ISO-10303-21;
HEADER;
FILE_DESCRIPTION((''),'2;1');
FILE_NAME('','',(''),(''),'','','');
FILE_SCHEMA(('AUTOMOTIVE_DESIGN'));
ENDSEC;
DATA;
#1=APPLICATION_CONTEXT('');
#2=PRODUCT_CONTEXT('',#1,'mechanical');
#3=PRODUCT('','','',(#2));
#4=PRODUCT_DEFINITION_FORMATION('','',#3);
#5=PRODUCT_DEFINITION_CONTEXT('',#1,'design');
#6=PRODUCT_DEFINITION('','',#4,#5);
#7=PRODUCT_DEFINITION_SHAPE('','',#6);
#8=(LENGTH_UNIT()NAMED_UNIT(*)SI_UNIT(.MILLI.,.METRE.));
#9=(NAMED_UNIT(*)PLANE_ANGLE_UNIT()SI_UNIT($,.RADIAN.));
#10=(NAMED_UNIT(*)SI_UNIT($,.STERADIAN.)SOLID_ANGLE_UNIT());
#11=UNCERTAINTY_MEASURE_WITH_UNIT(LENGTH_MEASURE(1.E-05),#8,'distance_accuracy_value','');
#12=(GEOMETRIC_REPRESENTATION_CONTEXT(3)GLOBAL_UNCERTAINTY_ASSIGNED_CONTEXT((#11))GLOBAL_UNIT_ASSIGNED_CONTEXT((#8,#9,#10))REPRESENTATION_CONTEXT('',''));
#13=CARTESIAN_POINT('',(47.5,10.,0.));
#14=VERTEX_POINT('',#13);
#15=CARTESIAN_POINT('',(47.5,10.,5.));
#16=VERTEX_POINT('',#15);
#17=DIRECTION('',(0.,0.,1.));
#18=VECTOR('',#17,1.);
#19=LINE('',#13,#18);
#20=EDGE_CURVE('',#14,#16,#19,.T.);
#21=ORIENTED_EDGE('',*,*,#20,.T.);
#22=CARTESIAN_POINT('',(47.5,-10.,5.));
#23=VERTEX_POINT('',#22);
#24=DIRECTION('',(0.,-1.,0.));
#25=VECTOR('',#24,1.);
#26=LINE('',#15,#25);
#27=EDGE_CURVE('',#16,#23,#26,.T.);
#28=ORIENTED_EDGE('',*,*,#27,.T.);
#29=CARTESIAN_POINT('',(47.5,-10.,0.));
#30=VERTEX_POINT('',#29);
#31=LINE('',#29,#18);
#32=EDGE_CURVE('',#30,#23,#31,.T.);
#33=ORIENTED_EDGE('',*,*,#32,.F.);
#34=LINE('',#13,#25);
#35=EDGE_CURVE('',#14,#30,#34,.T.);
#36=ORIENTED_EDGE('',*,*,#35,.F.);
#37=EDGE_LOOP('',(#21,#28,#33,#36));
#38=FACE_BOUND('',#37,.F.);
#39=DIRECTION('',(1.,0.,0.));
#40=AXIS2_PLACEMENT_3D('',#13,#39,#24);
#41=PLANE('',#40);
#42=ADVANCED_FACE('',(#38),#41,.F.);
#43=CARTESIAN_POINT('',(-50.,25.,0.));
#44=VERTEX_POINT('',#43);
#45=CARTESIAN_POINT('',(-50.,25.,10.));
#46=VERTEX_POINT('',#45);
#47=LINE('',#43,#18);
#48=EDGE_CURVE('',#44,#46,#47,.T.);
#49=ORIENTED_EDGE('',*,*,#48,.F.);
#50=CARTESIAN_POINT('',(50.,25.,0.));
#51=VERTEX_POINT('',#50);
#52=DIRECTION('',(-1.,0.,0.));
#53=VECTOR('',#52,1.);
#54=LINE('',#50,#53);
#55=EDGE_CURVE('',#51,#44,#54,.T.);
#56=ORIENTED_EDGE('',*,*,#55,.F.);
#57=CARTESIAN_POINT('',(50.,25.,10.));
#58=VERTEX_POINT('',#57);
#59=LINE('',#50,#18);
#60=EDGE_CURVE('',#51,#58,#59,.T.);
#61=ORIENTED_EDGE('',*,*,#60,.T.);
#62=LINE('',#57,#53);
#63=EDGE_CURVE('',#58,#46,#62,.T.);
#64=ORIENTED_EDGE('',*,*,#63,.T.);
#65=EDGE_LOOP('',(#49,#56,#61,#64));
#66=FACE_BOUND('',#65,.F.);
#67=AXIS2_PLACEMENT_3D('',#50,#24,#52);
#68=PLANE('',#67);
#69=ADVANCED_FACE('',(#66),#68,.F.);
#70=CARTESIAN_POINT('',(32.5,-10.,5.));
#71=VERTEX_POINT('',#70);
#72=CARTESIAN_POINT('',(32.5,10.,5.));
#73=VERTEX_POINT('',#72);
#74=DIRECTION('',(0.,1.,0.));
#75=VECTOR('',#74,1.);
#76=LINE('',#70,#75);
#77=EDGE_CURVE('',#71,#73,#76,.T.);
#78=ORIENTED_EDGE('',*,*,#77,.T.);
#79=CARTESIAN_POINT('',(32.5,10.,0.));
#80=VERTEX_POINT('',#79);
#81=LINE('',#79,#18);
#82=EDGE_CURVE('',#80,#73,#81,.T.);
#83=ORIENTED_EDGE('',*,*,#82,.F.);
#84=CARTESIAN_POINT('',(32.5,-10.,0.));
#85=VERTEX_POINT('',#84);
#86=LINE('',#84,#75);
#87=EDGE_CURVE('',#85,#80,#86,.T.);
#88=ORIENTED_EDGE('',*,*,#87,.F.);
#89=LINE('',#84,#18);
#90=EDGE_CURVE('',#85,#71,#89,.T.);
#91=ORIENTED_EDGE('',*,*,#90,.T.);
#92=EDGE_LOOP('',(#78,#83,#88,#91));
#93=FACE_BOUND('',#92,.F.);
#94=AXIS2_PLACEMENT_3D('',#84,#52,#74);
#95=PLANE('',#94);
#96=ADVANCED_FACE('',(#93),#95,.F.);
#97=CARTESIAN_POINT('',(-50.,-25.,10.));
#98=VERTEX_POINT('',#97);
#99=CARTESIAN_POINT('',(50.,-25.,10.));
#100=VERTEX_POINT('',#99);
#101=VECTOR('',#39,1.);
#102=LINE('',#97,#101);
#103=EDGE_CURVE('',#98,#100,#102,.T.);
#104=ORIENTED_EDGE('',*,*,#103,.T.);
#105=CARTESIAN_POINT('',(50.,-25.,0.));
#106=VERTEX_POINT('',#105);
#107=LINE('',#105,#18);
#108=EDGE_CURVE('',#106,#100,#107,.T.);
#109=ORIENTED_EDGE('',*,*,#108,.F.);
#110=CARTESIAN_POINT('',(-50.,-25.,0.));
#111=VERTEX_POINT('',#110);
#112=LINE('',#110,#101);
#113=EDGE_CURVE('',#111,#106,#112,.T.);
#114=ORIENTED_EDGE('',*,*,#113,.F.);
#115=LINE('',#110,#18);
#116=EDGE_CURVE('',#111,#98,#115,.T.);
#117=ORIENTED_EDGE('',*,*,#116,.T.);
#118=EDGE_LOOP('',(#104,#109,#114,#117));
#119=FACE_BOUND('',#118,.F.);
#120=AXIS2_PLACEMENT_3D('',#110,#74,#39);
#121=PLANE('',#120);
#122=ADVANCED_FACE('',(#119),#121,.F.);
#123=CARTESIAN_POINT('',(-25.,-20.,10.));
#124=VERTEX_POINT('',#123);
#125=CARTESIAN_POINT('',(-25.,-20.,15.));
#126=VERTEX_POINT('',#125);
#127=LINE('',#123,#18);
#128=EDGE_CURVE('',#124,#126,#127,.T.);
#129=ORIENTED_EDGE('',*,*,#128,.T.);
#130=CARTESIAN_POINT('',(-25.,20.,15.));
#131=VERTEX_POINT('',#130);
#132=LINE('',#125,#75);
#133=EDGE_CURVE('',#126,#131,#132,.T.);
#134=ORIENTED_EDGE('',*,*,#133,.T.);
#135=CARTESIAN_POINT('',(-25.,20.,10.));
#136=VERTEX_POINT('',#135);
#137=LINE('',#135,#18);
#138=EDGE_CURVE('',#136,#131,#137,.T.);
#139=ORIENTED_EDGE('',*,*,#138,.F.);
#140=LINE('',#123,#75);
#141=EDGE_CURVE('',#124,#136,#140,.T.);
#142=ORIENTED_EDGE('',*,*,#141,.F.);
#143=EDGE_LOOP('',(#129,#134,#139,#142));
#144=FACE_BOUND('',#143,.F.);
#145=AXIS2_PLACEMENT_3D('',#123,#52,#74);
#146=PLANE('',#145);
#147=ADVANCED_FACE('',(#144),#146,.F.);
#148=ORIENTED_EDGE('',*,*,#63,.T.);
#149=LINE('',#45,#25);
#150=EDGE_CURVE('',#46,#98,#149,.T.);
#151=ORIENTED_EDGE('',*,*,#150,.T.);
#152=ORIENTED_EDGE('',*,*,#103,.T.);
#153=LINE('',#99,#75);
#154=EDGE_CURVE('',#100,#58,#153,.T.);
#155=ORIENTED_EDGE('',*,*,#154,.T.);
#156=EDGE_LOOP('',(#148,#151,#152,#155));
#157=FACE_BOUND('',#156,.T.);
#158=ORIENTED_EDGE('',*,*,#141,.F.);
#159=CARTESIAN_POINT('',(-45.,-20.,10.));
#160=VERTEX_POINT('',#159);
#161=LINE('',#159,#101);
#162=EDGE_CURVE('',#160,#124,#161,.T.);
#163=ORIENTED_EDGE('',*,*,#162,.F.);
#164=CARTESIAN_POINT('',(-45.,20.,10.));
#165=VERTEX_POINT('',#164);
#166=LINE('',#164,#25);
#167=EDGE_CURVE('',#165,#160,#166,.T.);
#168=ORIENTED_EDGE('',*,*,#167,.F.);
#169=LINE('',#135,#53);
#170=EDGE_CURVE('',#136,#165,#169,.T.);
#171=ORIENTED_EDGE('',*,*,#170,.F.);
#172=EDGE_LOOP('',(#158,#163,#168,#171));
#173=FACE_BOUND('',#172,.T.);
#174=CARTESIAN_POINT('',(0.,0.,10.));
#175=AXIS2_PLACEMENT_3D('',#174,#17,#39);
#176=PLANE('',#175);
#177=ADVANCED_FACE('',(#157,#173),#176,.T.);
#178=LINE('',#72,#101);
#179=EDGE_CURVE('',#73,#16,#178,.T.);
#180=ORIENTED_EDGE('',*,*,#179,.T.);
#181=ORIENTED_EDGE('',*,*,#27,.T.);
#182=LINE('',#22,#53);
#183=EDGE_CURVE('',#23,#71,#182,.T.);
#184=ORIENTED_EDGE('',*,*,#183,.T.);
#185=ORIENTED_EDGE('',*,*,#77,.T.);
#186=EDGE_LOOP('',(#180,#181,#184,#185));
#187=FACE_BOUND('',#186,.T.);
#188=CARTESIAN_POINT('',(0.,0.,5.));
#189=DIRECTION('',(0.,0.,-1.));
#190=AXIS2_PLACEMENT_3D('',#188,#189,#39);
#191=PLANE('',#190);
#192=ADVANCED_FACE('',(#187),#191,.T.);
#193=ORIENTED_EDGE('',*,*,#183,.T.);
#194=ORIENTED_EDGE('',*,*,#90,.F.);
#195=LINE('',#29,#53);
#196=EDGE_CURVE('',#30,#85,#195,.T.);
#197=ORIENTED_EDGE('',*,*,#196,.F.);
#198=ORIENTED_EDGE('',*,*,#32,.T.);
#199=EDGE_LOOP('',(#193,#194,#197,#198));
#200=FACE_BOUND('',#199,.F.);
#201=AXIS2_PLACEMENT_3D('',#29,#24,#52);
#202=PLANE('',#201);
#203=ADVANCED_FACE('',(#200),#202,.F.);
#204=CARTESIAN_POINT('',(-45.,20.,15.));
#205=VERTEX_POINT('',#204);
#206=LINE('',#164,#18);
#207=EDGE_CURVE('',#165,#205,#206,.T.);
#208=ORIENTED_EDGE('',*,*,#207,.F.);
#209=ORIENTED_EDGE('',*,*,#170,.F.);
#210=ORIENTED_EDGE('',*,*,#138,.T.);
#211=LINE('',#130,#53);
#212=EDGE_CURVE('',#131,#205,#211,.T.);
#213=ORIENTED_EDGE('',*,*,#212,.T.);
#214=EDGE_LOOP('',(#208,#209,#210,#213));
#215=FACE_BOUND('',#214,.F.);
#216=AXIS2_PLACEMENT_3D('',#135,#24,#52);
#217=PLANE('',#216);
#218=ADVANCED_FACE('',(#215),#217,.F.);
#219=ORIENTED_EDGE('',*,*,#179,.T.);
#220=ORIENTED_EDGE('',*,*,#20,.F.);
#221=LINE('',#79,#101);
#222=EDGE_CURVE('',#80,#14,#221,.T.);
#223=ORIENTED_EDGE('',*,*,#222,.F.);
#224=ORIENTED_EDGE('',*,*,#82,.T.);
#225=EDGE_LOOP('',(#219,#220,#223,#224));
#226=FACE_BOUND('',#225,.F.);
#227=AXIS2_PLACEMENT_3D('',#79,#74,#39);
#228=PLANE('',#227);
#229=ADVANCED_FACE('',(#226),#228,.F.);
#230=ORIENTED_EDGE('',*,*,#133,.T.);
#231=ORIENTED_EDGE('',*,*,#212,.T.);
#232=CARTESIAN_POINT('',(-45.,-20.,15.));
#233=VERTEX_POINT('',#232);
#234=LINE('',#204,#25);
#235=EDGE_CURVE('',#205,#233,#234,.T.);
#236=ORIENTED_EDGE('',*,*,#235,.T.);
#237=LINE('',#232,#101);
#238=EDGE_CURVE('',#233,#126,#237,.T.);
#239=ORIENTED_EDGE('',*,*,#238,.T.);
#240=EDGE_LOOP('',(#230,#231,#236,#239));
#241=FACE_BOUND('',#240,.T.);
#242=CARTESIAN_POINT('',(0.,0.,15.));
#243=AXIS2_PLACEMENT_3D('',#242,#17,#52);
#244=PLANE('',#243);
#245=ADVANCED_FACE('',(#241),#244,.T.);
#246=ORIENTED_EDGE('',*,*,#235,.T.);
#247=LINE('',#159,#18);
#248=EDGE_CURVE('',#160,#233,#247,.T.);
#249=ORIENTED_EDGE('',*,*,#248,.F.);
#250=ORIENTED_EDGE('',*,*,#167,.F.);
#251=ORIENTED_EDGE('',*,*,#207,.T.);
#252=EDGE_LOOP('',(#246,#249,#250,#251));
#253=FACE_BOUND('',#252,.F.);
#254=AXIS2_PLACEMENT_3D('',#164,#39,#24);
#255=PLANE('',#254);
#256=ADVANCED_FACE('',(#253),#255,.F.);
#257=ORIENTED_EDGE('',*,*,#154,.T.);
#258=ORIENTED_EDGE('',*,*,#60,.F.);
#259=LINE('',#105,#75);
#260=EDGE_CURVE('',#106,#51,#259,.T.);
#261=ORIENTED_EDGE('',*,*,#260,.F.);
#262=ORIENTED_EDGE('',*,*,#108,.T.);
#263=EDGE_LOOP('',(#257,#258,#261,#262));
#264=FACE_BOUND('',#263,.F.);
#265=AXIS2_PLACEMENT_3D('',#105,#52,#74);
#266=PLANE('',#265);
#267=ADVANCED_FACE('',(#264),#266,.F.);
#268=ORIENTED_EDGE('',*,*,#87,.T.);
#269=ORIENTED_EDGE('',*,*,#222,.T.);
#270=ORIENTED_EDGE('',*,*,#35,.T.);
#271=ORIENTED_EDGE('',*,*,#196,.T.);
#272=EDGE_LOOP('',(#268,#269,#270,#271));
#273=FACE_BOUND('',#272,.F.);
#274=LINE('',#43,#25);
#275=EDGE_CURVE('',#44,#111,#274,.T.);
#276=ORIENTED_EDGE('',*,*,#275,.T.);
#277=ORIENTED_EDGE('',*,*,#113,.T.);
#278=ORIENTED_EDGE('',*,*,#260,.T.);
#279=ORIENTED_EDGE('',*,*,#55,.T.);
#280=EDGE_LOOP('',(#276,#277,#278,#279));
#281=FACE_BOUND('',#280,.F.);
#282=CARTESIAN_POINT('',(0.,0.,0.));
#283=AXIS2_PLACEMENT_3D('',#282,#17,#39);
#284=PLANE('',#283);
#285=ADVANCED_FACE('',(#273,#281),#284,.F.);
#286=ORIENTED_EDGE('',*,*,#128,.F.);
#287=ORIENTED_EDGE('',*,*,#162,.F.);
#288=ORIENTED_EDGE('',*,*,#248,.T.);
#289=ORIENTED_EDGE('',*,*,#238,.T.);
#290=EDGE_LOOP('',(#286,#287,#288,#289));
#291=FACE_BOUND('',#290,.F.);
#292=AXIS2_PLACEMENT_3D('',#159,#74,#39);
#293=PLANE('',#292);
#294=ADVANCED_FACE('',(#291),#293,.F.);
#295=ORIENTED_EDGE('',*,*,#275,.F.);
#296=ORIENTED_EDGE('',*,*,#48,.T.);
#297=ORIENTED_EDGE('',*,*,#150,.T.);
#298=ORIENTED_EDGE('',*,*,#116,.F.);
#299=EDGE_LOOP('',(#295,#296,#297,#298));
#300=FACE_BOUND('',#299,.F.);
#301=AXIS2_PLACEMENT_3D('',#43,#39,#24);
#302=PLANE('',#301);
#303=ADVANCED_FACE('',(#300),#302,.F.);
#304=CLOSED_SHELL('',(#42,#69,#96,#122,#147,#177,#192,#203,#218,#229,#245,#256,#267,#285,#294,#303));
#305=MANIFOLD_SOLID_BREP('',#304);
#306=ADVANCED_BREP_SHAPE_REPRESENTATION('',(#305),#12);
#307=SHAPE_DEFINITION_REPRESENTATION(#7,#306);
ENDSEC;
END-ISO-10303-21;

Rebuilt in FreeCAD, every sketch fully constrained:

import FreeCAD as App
import Part
import Sketcher
Q = App.Units.Quantity

doc = App.newDocument("Part")
body = doc.addObject("PartDesign::Body", "Body")

# Sketch on XY plane
sketch1 = body.newObject("Sketcher::SketchObject", "Sketch")
sketch1.AttachmentSupport = (doc.getObject("XY_Plane"), [""])
sketch1.MapMode = "FlatFace"
sketch1.addGeometry([
    Part.LineSegment(App.Vector(-50, 25, 0), App.Vector(-50, -25, 0)),
    Part.LineSegment(App.Vector(-50, -25, 0), App.Vector(50, -25, 0)),
    Part.LineSegment(App.Vector(50, -25, 0), App.Vector(50, 25, 0)),
    Part.LineSegment(App.Vector(50, 25, 0), App.Vector(-50, 25, 0)),
], False)
sketch1.addConstraint([
    Sketcher.Constraint("Coincident", 0, 2, 1, 1),
    Sketcher.Constraint("Coincident", 1, 2, 2, 1),
    Sketcher.Constraint("Coincident", 2, 2, 3, 1),
    Sketcher.Constraint("Coincident", 3, 2, 0, 1),
    Sketcher.Constraint("Vertical", 0),
    Sketcher.Constraint("Horizontal", 1),
    Sketcher.Constraint("Vertical", 2),
    Sketcher.Constraint("Horizontal", 3),
    Sketcher.Constraint("Symmetric", 0, 2, 2, 2, -1, 1),
    Sketcher.Constraint("DistanceX", 1, 1, 1, 2, Q("100 mm")),
    Sketcher.Constraint("DistanceY", 0, 2, 0, 1, Q("50 mm")),
])
pad1 = body.newObject("PartDesign::Pad", "Pad")
pad1.Profile = sketch1
pad1.Length = 10

# Sketch on XY plane
sketch2 = body.newObject("Sketcher::SketchObject", "Sketch001")
sketch2.AttachmentSupport = (doc.getObject("XY_Plane"), [""])
sketch2.MapMode = "FlatFace"
sketch2.addGeometry([
    Part.LineSegment(App.Vector(47.5, 10, 0), App.Vector(47.5, -10, 0)),
    Part.LineSegment(App.Vector(47.5, -10, 0), App.Vector(32.5, -10, 0)),
    Part.LineSegment(App.Vector(32.5, -10, 0), App.Vector(32.5, 10, 0)),
    Part.LineSegment(App.Vector(32.5, 10, 0), App.Vector(47.5, 10, 0)),
], False)
sketch2.addConstraint([
    Sketcher.Constraint("Coincident", 0, 2, 1, 1),
    Sketcher.Constraint("Coincident", 1, 2, 2, 1),
    Sketcher.Constraint("Coincident", 2, 2, 3, 1),
    Sketcher.Constraint("Coincident", 3, 2, 0, 1),
    Sketcher.Constraint("Vertical", 0),
    Sketcher.Constraint("Horizontal", 1),
    Sketcher.Constraint("Vertical", 2),
    Sketcher.Constraint("Horizontal", 3),
    Sketcher.Constraint("DistanceX", 1, 2, 1, 1, Q("15 mm")),
    Sketcher.Constraint("DistanceY", 0, 2, 0, 1, Q("20 mm")),
    Sketcher.Constraint("DistanceY", 0, 2, -1, 1, Q("10 mm")),
    Sketcher.Constraint("DistanceX", -1, 1, 0, 2, Q("47.5 mm")),
])
pocket1 = body.newObject("PartDesign::Pocket", "Pocket")
pocket1.Profile = sketch2
pocket1.Length = 5
pocket1.Reversed = True

# Sketch on XY plane
sketch3 = body.newObject("Sketcher::SketchObject", "Sketch002")
sketch3.AttachmentSupport = (doc.getObject("XY_Plane"), [""])
sketch3.MapMode = "FlatFace"
sketch3.AttachmentOffset = App.Placement(App.Vector(0, 0, 10), App.Rotation())
sketch3.addGeometry([
    Part.LineSegment(App.Vector(-25, -20, 0), App.Vector(-25, 20, 0)),
    Part.LineSegment(App.Vector(-25, 20, 0), App.Vector(-45, 20, 0)),
    Part.LineSegment(App.Vector(-45, 20, 0), App.Vector(-45, -20, 0)),
    Part.LineSegment(App.Vector(-45, -20, 0), App.Vector(-25, -20, 0)),
], False)
sketch3.addConstraint([
    Sketcher.Constraint("Coincident", 0, 2, 1, 1),
    Sketcher.Constraint("Coincident", 1, 2, 2, 1),
    Sketcher.Constraint("Coincident", 2, 2, 3, 1),
    Sketcher.Constraint("Coincident", 3, 2, 0, 1),
    Sketcher.Constraint("Vertical", 0),
    Sketcher.Constraint("Horizontal", 1),
    Sketcher.Constraint("Vertical", 2),
    Sketcher.Constraint("Horizontal", 3),
    Sketcher.Constraint("DistanceX", 1, 2, 1, 1, Q("20 mm")),
    Sketcher.Constraint("DistanceY", 0, 1, 0, 2, Q("40 mm")),
    Sketcher.Constraint("DistanceX", 0, 2, -1, 1, Q("25 mm")),
    Sketcher.Constraint("DistanceY", -1, 1, 0, 2, Q("20 mm")),
])
pad2 = body.newObject("PartDesign::Pad", "Pad001")
pad2.Profile = sketch3
pad2.Length = 5

doc.recompute()
